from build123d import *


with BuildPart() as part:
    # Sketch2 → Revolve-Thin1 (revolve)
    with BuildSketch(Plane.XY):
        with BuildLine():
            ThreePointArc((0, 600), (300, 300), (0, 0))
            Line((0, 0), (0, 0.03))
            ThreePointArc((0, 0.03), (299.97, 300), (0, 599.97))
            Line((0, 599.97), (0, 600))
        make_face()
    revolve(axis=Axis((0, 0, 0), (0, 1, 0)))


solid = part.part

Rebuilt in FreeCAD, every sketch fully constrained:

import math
import FreeCAD as App
import Part
import Sketcher

V = App.Vector

doc = App.newDocument("Part")
body = doc.addObject("PartDesign::Body", "Body")

# Sketch on XY plane
sketch1 = doc.addObject("Sketcher::SketchObject", "Sketch")
body.addObject(sketch1)
sketch1.AttachmentSupport = (doc.XY_Plane, [""])
sketch1.MapMode = "FlatFace"
sketch1.addGeometry([
    Part.ArcOfCircle(Part.Circle(V(0, 300, 0), V(0, 0, 1), 300), math.radians(-90), math.radians(90)),
    Part.LineSegment(V(0, 600, 0), V(0, 599.97, 0)),
    Part.ArcOfCircle(Part.Circle(V(0, 300, 0), V(0, 0, 1), 299.97), math.radians(-90), math.radians(90)),
    Part.LineSegment(V(0, 0.03, 0), V(0, 0, 0)),
], False)
sketch1.addConstraint([
    Sketcher.Constraint("Coincident", 0, 2, 1, 1),
    Sketcher.Constraint("Coincident", 1, 2, 2, 2),
    Sketcher.Constraint("Coincident", 2, 1, 3, 1),
    Sketcher.Constraint("Coincident", 3, 2, 0, 1),
    Sketcher.Constraint("Vertical", 1),
    Sketcher.Constraint("Vertical", 3),
    Sketcher.Constraint("Coincident", 3, 2, -1, 1),
    Sketcher.Constraint("Coincident", 2, 3, 0, 3),
    Sketcher.Constraint("PointOnObject", 0, 3, -2),
    Sketcher.Constraint("PointOnObject", 0, 2, -2),
    Sketcher.Constraint("Radius", 0, 300.0),
    Sketcher.Constraint("Radius", 2, 299.97),
])
revolution = doc.addObject("PartDesign::Revolution", "Revolution")
body.addObject(revolution)
revolution.Profile = sketch1
revolution.ReferenceAxis = (sketch1, ["V_Axis"])
revolution.Angle = 360

doc.recompute()
